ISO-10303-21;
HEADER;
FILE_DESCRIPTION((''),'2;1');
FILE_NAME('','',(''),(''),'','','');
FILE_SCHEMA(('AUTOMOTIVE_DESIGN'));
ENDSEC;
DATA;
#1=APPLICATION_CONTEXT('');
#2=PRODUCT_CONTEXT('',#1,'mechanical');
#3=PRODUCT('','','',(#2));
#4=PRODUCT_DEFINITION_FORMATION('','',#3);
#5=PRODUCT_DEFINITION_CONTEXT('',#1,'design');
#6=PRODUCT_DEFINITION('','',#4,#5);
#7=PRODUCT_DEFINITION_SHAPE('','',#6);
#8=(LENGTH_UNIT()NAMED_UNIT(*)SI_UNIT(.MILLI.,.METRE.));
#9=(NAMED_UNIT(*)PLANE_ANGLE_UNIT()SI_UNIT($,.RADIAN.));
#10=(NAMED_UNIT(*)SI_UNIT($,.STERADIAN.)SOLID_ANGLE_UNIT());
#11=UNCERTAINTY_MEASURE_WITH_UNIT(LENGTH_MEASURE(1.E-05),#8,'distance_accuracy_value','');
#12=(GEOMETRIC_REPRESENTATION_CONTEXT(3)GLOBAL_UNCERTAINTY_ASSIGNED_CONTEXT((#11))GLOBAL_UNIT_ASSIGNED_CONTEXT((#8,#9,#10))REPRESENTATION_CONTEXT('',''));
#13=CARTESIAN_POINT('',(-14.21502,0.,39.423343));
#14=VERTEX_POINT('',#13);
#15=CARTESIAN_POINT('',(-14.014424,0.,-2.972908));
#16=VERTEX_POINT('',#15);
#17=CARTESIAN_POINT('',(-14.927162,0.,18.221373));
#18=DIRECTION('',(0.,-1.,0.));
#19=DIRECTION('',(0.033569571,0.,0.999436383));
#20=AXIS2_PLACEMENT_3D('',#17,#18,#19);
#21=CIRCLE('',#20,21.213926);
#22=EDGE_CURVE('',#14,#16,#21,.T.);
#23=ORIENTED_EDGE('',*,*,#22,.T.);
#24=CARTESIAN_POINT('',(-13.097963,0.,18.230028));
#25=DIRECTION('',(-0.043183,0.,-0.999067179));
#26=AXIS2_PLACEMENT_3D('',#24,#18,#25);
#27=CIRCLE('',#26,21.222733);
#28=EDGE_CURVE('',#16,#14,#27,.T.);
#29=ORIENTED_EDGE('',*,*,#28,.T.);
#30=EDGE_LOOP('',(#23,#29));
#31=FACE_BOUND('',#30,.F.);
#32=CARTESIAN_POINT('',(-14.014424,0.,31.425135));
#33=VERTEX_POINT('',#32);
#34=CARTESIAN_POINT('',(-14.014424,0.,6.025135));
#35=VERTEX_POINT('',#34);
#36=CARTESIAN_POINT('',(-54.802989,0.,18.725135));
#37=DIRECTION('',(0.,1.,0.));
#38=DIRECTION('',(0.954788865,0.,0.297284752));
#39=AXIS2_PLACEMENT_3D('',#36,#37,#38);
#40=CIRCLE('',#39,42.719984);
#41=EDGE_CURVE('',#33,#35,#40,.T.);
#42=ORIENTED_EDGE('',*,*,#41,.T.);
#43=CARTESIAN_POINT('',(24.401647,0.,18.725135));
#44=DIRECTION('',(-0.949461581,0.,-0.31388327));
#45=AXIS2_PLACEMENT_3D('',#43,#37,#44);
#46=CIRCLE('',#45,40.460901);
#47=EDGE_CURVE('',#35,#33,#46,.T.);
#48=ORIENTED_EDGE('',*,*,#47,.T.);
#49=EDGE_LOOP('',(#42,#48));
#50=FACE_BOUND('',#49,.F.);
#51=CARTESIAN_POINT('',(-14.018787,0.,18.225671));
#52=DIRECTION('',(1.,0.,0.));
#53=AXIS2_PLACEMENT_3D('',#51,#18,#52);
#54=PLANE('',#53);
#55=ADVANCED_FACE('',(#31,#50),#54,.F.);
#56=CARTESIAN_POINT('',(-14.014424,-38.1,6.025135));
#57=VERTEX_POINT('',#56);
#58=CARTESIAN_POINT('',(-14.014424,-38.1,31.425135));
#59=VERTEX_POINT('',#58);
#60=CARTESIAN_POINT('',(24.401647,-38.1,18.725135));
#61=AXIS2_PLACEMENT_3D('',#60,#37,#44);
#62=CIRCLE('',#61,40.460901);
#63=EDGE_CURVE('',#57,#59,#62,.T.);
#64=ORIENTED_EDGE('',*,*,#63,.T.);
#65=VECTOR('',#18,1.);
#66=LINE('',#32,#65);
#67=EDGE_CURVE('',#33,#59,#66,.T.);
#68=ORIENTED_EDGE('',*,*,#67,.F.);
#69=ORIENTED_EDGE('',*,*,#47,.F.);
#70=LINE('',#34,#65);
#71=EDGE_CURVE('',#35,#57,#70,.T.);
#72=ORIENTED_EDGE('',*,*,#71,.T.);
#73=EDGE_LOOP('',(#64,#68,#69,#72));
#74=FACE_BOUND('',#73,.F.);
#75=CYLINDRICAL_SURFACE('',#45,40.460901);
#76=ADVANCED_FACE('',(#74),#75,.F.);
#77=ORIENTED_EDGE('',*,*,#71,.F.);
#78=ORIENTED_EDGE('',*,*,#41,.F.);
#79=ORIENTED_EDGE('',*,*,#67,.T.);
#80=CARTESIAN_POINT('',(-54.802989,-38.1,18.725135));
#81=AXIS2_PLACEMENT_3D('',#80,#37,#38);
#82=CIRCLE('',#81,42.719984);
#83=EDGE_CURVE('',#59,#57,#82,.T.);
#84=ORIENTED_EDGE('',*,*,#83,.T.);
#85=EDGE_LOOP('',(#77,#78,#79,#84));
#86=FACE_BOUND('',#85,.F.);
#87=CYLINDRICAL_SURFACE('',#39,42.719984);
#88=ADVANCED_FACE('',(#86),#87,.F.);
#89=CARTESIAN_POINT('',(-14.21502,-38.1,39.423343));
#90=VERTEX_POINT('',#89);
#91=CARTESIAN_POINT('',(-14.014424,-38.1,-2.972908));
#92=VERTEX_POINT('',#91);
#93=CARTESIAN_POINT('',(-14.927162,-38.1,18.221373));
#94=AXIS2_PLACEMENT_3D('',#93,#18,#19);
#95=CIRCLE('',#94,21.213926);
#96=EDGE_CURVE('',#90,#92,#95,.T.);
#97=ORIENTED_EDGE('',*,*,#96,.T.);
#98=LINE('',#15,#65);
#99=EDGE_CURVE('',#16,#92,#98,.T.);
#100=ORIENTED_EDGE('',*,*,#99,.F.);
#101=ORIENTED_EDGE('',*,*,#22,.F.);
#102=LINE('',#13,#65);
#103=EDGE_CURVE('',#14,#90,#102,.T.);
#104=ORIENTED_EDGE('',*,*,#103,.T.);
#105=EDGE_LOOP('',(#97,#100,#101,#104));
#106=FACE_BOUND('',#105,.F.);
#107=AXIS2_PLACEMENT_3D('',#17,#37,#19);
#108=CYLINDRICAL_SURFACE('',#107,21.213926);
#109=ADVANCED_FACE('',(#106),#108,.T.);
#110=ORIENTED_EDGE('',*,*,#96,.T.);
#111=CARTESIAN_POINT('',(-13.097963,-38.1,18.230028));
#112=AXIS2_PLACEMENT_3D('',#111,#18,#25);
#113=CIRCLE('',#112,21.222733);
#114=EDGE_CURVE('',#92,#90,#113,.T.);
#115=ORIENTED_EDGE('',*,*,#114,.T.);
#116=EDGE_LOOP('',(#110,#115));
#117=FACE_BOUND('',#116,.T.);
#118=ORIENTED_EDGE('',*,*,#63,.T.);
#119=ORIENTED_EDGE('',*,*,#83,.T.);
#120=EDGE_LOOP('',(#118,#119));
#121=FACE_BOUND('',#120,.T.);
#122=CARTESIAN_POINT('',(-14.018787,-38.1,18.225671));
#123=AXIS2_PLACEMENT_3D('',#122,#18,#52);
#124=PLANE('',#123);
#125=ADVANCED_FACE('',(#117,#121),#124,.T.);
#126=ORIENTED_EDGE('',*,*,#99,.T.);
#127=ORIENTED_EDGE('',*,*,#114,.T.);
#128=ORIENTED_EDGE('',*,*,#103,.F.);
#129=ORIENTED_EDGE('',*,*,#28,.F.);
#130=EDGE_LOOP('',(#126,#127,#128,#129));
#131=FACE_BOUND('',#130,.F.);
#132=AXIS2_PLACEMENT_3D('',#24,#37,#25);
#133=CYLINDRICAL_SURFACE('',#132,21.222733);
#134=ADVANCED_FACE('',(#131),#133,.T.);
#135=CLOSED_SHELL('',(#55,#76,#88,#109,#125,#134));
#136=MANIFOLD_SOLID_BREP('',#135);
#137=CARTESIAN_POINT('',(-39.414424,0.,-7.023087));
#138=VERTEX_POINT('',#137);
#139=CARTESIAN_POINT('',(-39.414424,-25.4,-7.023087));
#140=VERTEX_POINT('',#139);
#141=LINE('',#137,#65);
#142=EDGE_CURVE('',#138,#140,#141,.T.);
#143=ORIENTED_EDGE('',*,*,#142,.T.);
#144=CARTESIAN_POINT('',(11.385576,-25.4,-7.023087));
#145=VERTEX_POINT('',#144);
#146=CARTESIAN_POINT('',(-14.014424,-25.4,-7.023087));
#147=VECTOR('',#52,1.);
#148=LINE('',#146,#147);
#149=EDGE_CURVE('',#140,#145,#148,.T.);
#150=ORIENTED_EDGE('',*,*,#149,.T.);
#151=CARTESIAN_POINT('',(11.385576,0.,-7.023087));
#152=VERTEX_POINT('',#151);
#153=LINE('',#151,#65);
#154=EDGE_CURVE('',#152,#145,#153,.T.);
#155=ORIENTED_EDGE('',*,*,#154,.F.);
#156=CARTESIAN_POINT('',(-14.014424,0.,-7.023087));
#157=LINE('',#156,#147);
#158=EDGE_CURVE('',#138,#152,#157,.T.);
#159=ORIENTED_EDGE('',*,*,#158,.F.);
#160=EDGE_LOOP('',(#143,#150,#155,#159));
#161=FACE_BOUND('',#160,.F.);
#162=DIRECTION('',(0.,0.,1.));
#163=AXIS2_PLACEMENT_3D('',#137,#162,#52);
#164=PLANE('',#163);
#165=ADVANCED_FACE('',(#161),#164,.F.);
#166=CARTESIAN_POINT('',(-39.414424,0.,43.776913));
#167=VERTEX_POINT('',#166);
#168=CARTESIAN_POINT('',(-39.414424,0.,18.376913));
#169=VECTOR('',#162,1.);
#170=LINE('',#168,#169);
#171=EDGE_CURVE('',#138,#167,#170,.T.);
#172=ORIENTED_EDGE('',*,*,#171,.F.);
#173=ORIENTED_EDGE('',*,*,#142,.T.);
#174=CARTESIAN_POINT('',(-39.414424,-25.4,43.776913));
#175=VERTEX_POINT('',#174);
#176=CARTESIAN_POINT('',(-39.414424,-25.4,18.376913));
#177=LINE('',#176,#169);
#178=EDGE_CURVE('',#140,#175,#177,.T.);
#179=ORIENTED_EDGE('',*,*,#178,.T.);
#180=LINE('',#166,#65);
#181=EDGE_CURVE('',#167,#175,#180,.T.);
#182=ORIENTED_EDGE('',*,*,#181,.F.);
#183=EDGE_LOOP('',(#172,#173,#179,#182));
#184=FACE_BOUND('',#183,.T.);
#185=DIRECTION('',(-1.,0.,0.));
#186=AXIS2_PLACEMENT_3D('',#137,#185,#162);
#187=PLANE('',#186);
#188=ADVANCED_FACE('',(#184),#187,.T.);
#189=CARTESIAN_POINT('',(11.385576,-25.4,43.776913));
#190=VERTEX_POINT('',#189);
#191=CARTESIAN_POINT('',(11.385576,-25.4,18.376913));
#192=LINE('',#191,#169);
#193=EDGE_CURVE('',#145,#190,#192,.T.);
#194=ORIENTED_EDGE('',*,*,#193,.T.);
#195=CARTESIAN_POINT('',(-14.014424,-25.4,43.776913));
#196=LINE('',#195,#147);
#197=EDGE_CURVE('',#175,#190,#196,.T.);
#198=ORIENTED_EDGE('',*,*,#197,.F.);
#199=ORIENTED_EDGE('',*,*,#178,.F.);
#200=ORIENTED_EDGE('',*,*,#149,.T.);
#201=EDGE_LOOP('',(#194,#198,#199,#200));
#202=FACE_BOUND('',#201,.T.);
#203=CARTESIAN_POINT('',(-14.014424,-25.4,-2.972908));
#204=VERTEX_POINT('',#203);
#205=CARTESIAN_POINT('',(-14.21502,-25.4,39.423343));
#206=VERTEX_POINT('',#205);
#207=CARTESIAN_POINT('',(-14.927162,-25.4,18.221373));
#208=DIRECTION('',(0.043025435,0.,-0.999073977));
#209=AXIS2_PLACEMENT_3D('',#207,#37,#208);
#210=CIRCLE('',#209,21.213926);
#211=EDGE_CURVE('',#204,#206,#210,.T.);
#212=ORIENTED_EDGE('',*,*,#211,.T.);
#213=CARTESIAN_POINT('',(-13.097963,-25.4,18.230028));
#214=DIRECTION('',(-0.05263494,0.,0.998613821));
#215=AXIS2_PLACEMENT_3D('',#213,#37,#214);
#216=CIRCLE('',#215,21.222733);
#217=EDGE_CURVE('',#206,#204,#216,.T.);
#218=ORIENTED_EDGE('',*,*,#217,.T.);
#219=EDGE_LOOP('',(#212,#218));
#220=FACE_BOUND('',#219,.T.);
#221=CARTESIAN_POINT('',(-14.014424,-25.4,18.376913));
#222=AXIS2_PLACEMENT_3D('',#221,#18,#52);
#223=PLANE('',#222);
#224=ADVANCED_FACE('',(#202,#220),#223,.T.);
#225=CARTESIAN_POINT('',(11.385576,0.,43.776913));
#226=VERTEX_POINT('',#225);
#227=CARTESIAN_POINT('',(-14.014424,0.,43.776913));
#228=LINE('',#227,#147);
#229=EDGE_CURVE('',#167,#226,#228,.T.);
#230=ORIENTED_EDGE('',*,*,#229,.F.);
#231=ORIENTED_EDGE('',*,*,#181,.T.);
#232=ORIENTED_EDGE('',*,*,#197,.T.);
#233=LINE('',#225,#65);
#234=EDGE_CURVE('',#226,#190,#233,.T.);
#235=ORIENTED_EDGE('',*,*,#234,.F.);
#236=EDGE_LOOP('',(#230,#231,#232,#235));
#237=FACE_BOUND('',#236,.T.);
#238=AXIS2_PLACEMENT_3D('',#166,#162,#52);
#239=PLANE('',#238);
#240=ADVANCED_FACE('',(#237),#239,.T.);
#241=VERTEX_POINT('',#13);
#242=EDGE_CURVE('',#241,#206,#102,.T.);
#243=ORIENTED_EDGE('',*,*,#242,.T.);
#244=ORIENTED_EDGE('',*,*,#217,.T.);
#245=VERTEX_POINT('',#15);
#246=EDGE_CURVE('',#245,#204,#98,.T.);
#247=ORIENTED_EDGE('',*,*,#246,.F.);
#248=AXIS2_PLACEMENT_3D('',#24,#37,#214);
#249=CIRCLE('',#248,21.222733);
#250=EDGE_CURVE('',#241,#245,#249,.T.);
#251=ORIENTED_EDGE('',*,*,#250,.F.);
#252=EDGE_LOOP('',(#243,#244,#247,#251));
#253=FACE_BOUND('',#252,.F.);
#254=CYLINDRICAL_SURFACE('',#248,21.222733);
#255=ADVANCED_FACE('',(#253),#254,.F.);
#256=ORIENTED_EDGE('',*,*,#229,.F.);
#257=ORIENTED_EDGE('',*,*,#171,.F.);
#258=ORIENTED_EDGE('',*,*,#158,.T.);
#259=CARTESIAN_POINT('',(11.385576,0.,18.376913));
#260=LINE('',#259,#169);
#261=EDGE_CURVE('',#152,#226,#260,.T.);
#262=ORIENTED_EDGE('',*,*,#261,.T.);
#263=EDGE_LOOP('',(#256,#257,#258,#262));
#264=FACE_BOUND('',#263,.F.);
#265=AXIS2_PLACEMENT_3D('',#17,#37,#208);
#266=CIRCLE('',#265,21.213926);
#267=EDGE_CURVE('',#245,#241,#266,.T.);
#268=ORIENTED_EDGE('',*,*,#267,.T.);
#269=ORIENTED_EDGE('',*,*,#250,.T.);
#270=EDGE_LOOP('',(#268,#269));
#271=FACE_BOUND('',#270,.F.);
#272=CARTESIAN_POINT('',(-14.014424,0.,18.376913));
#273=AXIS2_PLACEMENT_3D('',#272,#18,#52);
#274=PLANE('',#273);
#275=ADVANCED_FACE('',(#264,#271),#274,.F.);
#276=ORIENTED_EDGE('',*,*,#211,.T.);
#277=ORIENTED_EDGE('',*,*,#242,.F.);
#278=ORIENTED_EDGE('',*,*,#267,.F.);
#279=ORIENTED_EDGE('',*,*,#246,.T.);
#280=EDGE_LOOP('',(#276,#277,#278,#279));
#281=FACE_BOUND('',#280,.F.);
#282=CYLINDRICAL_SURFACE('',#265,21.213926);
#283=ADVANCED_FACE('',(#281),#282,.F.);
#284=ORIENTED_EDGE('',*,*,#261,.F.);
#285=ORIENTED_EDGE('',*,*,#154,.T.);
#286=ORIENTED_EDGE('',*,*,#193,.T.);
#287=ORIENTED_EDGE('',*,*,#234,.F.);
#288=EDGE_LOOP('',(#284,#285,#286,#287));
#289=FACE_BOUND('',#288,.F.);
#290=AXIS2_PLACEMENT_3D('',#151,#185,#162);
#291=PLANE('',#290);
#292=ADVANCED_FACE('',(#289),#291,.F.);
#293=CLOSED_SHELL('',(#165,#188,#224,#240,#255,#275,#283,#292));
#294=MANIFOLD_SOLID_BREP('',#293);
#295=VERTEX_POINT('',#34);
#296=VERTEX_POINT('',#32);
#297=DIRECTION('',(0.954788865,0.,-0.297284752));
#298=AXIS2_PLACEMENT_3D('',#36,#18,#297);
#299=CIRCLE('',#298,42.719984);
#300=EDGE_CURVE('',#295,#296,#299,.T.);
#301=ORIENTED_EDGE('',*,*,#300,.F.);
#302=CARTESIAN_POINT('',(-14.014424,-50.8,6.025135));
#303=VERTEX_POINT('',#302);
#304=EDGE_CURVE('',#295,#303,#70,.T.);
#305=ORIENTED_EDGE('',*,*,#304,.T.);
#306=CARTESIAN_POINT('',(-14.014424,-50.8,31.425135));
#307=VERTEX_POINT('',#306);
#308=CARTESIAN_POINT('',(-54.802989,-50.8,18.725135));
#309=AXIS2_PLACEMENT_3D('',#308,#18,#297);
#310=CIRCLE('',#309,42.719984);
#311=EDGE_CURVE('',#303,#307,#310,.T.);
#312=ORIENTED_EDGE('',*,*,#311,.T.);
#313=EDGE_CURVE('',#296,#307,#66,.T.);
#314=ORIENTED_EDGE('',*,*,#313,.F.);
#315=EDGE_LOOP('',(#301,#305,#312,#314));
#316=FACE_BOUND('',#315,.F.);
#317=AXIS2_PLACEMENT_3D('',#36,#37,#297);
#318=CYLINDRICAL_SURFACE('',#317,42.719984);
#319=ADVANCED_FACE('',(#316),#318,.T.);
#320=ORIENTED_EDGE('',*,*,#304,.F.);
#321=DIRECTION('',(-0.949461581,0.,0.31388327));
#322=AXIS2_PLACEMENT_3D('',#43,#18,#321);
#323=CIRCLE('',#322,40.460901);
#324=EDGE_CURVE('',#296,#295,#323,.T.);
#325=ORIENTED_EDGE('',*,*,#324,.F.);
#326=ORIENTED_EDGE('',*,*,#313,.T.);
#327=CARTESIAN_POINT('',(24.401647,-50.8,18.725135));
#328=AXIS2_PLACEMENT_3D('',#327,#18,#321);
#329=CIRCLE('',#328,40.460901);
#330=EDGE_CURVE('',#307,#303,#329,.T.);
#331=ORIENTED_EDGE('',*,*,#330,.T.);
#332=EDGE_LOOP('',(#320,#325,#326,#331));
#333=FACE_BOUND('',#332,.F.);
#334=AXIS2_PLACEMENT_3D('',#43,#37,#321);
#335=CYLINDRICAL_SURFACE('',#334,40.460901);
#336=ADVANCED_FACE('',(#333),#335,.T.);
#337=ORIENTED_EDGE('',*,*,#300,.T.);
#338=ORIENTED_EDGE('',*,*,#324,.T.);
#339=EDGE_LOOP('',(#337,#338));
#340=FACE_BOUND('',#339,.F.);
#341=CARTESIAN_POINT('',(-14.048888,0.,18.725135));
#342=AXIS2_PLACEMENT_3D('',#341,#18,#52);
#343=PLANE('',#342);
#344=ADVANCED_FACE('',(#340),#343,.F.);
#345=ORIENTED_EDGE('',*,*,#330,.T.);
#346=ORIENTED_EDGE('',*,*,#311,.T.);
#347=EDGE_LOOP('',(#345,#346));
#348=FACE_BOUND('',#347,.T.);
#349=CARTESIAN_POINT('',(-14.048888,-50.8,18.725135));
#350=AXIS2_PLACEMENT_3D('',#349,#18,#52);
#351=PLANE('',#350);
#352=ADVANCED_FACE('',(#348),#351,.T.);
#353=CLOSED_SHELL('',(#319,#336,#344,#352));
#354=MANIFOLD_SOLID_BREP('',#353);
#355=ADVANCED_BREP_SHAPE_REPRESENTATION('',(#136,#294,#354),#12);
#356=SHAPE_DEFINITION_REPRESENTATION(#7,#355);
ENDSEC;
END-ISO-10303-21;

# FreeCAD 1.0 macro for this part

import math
import FreeCAD as App
import Part
import Sketcher
from FreeCAD import Vector
Q = App.Units.Quantity


def add_polygon(sketch, points):
    """Adds a closed chain of lines whose ends are joined by coincident constraints."""
    first, n = sketch.GeometryCount, len(points)
    for a, b in zip(points, points[1:] + points[:1]):
        sketch.addGeometry(Part.LineSegment(App.Vector(*a, 0), App.Vector(*b, 0)), False)
    for i in range(n):
        sketch.addConstraint(Sketcher.Constraint("Coincident", first + i, 2, first + (i + 1) % n, 1))

doc = App.newDocument("Part")
params = doc.addObject("Spreadsheet::Sheet", "Params")
for row, (alias, value) in enumerate([
    ("sketch1_width", "2 in"),
    ("pad1_length", "1 in"),
    ("pad2_length", "2 in"),
    ("pad3_length", "1.5 in"),
], start=1):
    params.set(f"A{row}", alias)
    params.set(f"B{row}", "=" + value)
    params.setAlias(f"B{row}", alias)

body = doc.addObject("PartDesign::Body", "Body")

# Sketch on XZ plane
sketch1 = body.newObject("Sketcher::SketchObject", "Sketch")
sketch1.AttachmentSupport = (doc.getObject("XZ_Plane"), [""])
sketch1.MapMode = "FlatFace"
add_polygon(sketch1, [(-39, 44), (-39, -7), (11, -7), (11, 44)])  # lines 0-3
sketch1.addGeometry(Part.ArcOfCircle(Part.Circle(Vector(-13, 18, 0), Vector(0, 0, 1), 21), math.radians(-92), math.radians(93)), False)  # 4
sketch1.addGeometry(Part.ArcOfCircle(Part.Circle(Vector(-15, 18, 0), Vector(0, 0, 1), 21), math.radians(88), math.radians(272)), False)  # 5
sketch1.addConstraint([
    Sketcher.Constraint("Coincident", 4, 1, 5, 2),
    Sketcher.Constraint("Coincident", 5, 1, 4, 2),
    Sketcher.Constraint("Vertical", 0),
    Sketcher.Constraint("Horizontal", 1),
    Sketcher.Constraint("Vertical", 2),
    Sketcher.Constraint("Horizontal", 3),
    Sketcher.Constraint("Equal", 3, 0),
    Sketcher.Constraint("DistanceX", 1, 1, 1, 2, Q("2 in")),
    Sketcher.Constraint("DistanceX", 4, 1, 1, 2, Q("1 in")),
    Sketcher.Constraint("DistanceY", -1, 1, 5, 1, Q("1.5521001 in")),
    Sketcher.Constraint("Radius", 4, Q("21.222733 mm")),
    Sketcher.Constraint("Radius", 5, Q("21.213926 mm")),
    Sketcher.Constraint("DistanceX", 5, 3, 4, 3, Q("1.8292 mm")),
    Sketcher.Constraint("DistanceY", -1, 1, 4, 3, Q("18.230028 mm")),
    Sketcher.Constraint("DistanceX", 5, 1, -1, 1, Q("14.21502 mm")),
    Sketcher.Constraint("DistanceY", 0, 2, 5, 3, Q("25.24446 mm")),
])
sketch1.setExpression("Constraints[11]", "Params.sketch1_width")
pad1 = body.newObject("PartDesign::Pad", "Pad")
pad1.Profile = sketch1
pad1.setExpression("Length", "Params.pad1_length")
body2 = doc.addObject("PartDesign::Body", "Body001")

# Sketch on XZ plane
sketch2 = body2.newObject("Sketcher::SketchObject", "Sketch001")
sketch2.AttachmentSupport = (doc.getObject("XZ_Plane001"), [""])
sketch2.MapMode = "FlatFace"
sketch2.addGeometry([
    Part.ArcOfCircle(Part.Circle(Vector(24, 19, 0), Vector(0, 0, 1), 40), math.radians(162), math.radians(198)),
    Part.ArcOfCircle(Part.Circle(Vector(-55, 19, 0), Vector(0, 0, 1), 43), math.radians(-17), math.radians(17)),
], False)
sketch2.addConstraint([
    Sketcher.Constraint("Coincident", 0, 1, 1, 2),
    Sketcher.Constraint("Coincident", 1, 1, 0, 2),
    Sketcher.Constraint("Horizontal", 0, 3, 1, 3),
    Sketcher.Constraint("DistanceY", 1, 1, 0, 1, Q("1 in")),
    Sketcher.Constraint("Radius", 0, Q("40.460901 mm")),
    Sketcher.Constraint("Radius", 1, Q("42.719984 mm")),
    Sketcher.Constraint("DistanceX", 1, 3, -1, 1, Q("54.802989 mm")),
    Sketcher.Constraint("DistanceY", -1, 1, 0, 3, Q("18.725135 mm")),
])
pad2 = body2.newObject("PartDesign::Pad", "Pad001")
pad2.Profile = sketch2
pad2.setExpression("Length", "Params.pad2_length")
body3 = doc.addObject("PartDesign::Body", "Body002")

# Sketch on XZ plane
sketch3 = body3.newObject("Sketcher::SketchObject", "Sketch002")
sketch3.AttachmentSupport = (doc.getObject("XZ_Plane002"), [""])
sketch3.MapMode = "FlatFace"
sketch3.addGeometry([
    Part.ArcOfCircle(Part.Circle(Vector(-13, 18, 0), Vector(0, 0, 1), 21), math.radians(-92), math.radians(93)),
    Part.ArcOfCircle(Part.Circle(Vector(-15, 18, 0), Vector(0, 0, 1), 21), math.radians(88), math.radians(272)),
    Part.ArcOfCircle(Part.Circle(Vector(24, 19, 0), Vector(0, 0, 1), 40), math.radians(162), math.radians(198)),
    Part.ArcOfCircle(Part.Circle(Vector(-55, 19, 0), Vector(0, 0, 1), 43), math.radians(-17), math.radians(17)),
], False)
sketch3.addConstraint([
    Sketcher.Constraint("Coincident", 0, 1, 1, 2),
    Sketcher.Constraint("Coincident", 1, 1, 0, 2),
    Sketcher.Constraint("Coincident", 2, 1, 3, 2),
    Sketcher.Constraint("Coincident", 3, 1, 2, 2),
    Sketcher.Constraint("Horizontal", 2, 3, 3, 3),
    Sketcher.Constraint("Vertical", 0, 1, 2, 1),
    Sketcher.Constraint("DistanceY", 3, 1, 2, 1, Q("1 in")),
    Sketcher.Constraint("Radius", 2, Q("40.460901 mm")),
    Sketcher.Constraint("DistanceY", -1, 1, 1, 1, Q("1.5521001 in")),
    Sketcher.Constraint("Radius", 0, Q("21.222733 mm")),
    Sketcher.Constraint("Radius", 1, Q("21.213926 mm")),
    Sketcher.Constraint("Radius", 3, Q("42.719984 mm")),
    Sketcher.Constraint("DistanceX", 1, 3, 0, 3, Q("1.8292 mm")),
    Sketcher.Constraint("DistanceY", -1, 1, 0, 3, Q("18.230028 mm")),
    Sketcher.Constraint("DistanceX", 3, 3, -1, 1, Q("54.802989 mm")),
    Sketcher.Constraint("DistanceY", 1, 3, 2, 3, Q("0.503762 mm")),
])
pad3 = body3.newObject("PartDesign::Pad", "Pad002")
pad3.Profile = sketch3
pad3.setExpression("Length", "Params.pad3_length")

doc.recompute()
